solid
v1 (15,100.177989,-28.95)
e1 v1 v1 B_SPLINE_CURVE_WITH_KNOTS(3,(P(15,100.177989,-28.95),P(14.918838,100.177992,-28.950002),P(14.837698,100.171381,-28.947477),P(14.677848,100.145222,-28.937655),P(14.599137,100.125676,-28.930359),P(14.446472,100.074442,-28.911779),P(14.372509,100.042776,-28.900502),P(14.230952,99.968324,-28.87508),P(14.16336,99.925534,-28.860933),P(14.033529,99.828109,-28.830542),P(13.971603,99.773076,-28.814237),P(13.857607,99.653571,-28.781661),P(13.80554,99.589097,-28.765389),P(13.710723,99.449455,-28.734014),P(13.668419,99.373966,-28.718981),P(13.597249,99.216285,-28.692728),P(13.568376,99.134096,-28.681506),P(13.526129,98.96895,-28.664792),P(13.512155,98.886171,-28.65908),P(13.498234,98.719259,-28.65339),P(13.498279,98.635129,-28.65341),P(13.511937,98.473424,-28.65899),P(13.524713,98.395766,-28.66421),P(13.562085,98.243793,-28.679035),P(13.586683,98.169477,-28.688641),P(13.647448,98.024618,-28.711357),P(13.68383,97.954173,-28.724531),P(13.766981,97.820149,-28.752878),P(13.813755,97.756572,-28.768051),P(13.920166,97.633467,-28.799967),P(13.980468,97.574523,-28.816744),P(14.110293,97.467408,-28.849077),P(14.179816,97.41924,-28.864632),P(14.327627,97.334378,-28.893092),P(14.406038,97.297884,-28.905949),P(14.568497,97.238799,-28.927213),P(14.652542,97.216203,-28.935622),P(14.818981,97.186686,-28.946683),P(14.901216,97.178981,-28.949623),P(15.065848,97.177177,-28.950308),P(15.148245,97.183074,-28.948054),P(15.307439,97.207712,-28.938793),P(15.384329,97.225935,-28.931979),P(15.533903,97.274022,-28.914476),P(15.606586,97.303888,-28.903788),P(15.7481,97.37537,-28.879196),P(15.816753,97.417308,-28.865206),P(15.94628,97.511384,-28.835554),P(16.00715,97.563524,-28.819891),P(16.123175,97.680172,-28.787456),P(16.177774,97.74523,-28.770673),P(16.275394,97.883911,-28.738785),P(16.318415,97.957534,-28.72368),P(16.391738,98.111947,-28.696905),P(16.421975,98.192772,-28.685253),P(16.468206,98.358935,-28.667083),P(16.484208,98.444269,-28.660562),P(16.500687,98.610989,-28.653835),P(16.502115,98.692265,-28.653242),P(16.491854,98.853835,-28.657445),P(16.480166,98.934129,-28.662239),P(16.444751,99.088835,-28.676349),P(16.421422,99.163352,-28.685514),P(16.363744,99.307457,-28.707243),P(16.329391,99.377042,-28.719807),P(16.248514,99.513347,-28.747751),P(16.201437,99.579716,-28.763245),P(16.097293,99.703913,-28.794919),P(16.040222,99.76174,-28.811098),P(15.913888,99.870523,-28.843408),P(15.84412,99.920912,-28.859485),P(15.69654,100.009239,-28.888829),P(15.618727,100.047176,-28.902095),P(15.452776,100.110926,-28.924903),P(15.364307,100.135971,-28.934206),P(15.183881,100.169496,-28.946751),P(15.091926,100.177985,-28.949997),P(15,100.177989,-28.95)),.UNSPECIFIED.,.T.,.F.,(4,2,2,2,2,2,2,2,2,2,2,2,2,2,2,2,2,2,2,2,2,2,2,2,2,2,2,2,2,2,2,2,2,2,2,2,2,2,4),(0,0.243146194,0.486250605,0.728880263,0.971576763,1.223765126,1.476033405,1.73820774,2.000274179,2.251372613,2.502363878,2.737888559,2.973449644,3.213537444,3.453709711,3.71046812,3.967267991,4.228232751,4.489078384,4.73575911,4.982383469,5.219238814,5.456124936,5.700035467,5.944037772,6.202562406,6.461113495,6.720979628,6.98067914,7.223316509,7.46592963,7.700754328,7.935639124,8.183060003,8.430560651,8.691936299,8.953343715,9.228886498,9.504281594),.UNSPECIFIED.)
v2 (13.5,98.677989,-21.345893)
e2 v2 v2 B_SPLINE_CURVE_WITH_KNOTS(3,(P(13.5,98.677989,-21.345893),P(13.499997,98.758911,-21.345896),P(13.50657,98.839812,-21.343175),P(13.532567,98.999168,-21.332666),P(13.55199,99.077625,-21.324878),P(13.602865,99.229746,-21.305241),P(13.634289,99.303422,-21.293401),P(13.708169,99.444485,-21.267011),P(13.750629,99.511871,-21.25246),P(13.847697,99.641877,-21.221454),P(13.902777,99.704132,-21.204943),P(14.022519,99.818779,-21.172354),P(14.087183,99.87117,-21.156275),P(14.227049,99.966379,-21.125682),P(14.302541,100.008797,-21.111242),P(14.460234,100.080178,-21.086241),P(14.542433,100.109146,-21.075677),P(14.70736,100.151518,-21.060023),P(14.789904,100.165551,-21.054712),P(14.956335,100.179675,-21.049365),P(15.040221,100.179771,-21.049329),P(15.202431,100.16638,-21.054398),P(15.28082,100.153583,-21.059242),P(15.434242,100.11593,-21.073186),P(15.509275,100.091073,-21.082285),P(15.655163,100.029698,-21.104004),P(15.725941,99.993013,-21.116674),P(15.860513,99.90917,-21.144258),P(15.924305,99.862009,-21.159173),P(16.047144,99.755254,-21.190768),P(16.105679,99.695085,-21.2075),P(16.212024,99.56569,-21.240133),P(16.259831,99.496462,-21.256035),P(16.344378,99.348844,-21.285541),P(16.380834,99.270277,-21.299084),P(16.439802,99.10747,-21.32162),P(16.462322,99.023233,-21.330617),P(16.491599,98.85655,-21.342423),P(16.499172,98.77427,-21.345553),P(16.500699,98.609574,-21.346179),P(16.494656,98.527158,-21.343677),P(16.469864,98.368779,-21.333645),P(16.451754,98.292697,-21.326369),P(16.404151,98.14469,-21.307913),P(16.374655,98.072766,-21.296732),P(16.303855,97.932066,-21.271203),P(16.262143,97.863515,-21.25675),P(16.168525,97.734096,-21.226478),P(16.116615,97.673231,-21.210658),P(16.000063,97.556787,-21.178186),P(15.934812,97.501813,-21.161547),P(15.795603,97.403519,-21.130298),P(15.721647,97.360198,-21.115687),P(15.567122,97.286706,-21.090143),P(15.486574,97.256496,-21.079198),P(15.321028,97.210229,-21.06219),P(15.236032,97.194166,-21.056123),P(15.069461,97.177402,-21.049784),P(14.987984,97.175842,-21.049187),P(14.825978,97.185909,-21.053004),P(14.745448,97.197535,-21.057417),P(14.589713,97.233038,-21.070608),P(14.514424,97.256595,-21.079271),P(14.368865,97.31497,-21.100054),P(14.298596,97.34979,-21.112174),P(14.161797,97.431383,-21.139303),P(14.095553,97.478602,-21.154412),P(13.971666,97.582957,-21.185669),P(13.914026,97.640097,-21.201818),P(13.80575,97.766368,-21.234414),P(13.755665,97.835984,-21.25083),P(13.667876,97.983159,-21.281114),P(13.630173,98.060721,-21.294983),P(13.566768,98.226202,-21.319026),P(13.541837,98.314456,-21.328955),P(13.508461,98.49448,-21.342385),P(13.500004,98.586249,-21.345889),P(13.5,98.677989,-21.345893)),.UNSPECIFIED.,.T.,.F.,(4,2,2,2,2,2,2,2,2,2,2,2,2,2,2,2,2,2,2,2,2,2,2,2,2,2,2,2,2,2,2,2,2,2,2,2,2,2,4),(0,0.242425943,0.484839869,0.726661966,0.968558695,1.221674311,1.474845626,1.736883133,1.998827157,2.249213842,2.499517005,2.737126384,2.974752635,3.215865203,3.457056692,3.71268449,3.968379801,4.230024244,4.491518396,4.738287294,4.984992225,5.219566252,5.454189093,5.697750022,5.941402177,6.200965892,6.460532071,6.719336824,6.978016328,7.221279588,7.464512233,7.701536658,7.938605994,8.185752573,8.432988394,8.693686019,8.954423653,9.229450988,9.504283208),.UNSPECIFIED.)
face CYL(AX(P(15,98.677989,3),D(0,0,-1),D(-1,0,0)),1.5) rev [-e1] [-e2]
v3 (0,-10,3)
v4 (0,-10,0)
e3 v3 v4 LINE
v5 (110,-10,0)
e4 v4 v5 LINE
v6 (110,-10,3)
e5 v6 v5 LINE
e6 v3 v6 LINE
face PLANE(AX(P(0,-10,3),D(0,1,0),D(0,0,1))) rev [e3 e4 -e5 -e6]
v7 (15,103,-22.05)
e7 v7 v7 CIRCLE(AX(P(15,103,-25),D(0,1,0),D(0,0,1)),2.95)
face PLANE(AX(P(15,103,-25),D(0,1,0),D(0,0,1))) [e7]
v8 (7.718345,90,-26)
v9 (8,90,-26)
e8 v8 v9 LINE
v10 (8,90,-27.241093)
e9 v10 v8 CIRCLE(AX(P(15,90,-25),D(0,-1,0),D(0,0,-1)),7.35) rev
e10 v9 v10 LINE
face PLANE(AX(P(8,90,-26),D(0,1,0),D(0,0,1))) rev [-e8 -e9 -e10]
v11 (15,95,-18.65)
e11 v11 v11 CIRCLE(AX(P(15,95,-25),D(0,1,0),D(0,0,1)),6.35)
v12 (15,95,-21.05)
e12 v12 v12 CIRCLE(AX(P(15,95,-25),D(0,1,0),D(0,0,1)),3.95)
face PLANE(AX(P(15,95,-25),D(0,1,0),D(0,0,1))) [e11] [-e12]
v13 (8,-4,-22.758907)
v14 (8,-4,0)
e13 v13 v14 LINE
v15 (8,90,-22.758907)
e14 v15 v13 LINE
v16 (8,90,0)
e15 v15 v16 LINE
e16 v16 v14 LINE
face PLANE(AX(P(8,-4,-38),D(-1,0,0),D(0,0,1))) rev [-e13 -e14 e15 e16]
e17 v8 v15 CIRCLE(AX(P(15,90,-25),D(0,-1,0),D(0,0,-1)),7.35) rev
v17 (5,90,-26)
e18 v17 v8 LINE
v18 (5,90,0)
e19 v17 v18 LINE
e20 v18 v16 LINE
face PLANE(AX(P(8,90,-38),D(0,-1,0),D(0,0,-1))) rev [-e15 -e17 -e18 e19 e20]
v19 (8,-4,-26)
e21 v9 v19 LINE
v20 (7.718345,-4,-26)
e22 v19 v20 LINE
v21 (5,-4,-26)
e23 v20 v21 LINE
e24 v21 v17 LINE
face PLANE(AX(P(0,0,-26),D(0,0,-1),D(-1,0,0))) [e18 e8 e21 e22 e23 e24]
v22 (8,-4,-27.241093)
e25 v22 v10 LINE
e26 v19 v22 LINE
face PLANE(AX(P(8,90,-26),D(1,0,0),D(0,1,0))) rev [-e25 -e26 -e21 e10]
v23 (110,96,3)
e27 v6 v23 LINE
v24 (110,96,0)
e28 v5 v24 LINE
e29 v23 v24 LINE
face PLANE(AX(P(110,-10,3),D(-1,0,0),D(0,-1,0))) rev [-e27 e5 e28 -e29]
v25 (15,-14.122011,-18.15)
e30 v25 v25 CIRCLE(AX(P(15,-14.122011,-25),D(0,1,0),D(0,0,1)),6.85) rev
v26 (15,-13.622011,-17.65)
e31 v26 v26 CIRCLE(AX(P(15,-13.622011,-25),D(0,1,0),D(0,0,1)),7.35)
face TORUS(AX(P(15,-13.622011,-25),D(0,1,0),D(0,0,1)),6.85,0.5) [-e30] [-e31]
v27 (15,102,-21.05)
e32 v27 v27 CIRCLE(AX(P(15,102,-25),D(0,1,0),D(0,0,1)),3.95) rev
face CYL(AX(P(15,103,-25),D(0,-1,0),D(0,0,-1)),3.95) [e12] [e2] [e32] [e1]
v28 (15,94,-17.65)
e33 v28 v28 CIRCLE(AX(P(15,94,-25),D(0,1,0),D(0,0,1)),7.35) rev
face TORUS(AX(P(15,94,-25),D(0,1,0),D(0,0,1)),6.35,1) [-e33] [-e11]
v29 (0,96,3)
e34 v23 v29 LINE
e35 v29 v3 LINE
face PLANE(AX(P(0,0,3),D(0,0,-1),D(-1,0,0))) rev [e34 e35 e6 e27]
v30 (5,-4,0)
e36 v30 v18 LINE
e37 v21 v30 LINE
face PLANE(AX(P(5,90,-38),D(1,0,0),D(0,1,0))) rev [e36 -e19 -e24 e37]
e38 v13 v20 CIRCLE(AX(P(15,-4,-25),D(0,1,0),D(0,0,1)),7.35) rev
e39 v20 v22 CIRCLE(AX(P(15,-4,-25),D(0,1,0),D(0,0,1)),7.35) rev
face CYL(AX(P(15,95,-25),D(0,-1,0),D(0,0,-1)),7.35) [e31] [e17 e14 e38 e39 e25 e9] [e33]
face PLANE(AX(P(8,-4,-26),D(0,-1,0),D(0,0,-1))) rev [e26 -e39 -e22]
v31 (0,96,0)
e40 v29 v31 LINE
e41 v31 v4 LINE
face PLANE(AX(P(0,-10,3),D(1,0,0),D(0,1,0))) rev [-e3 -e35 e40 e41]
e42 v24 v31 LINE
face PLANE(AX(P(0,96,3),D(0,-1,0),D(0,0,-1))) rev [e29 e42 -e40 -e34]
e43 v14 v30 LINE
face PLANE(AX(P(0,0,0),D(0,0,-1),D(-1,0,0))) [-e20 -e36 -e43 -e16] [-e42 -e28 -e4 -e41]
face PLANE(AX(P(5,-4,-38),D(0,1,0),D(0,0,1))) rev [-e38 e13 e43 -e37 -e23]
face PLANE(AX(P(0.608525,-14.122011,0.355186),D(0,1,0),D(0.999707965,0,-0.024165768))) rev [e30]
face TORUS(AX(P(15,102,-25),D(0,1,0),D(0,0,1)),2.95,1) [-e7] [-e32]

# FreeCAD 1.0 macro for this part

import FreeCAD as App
import Part
import Sketcher
from FreeCAD import Vector


def edges_at(feature, points):
    """Names of the edges that pass closest to the given points."""
    edges = feature.Shape.Edges
    near = lambda p: min(range(len(edges)), key=lambda i: edges[i].distToShape(Part.Vertex(*p))[0])
    return sorted({f"Edge{near(p) + 1}" for p in points})


def add_polygon(sketch, points):
    """Adds a closed chain of lines whose ends are joined by coincident constraints."""
    first, n = sketch.GeometryCount, len(points)
    for a, b in zip(points, points[1:] + points[:1]):
        sketch.addGeometry(Part.LineSegment(App.Vector(*a, 0), App.Vector(*b, 0)), False)
    for i in range(n):
        sketch.addConstraint(Sketcher.Constraint("Coincident", first + i, 2, first + (i + 1) % n, 1))

doc = App.newDocument("Part")
params = doc.addObject("Spreadsheet::Sheet", "Params")
for row, (alias, value) in enumerate([
    ("sketch1_width", "110 mm"),
    ("sketch1_height", "106 mm"),
    ("pad1_length", "3 mm"),
    ("sketch2_width", "3 mm"),
    ("sketch2_height", "94 mm"),
    ("pad2_length", "38 mm"),
    ("sketch3_diameter", "14.7 mm"),
    ("pad3_length", "5 mm"),
    ("pad3_length2", "104.122011 mm"),
    ("sketch4_diameter", "7.9 mm"),
    ("pad4_length", "8 mm"),
    ("fillet_radius", "1 mm"),
    ("sketch5_diameter", "3 mm"),
    ("fillet2_radius", "0.5 mm"),
    ("sketch6_width", "3 mm"),
    ("sketch6_height", "94 mm"),
    ("pocket2_length", "12 mm"),
], start=1):
    params.set(f"A{row}", alias)
    params.set(f"B{row}", "=" + value)
    params.setAlias(f"B{row}", alias)

body = doc.addObject("PartDesign::Body", "Body")

# Sketch on XY plane
sketch1 = body.newObject("Sketcher::SketchObject", "Sketch")
sketch1.AttachmentSupport = (doc.getObject("XY_Plane"), [""])
sketch1.MapMode = "FlatFace"
add_polygon(sketch1, [(0, 96), (0, -10), (110, -10), (110, 96)])  # lines 0-3
sketch1.addConstraint(Sketcher.Constraint("Vertical", 0))
sketch1.addConstraint(Sketcher.Constraint("Horizontal", 1))
sketch1.addConstraint(Sketcher.Constraint("Vertical", 2))
sketch1.addConstraint(Sketcher.Constraint("Horizontal", 3))
sketch1.addConstraint(Sketcher.Constraint("PointOnObject", 0, 2, -2))
sketch1.addConstraint(Sketcher.Constraint("DistanceX", 1, 1, 1, 2, 110.0))
sketch1.addConstraint(Sketcher.Constraint("DistanceY", 0, 2, 0, 1, 106.0))
sketch1.addConstraint(Sketcher.Constraint("DistanceY", 0, 2, -1, 1, 10.0))
sketch1.setExpression("Constraints[9]", "Params.sketch1_width")
sketch1.setExpression("Constraints[10]", "Params.sketch1_height")
pad1 = body.newObject("PartDesign::Pad", "Pad")
pad1.Profile = sketch1
pad1.setExpression("Length", "Params.pad1_length")

# Sketch on XY plane
sketch2 = body.newObject("Sketcher::SketchObject", "Sketch001")
sketch2.AttachmentSupport = (doc.getObject("XY_Plane"), [""])
sketch2.MapMode = "FlatFace"
add_polygon(sketch2, [(8, 90), (8, -4), (5, -4), (5, 90)])  # lines 0-3
sketch2.addConstraint(Sketcher.Constraint("Vertical", 0))
sketch2.addConstraint(Sketcher.Constraint("Horizontal", 1))
sketch2.addConstraint(Sketcher.Constraint("Vertical", 2))
sketch2.addConstraint(Sketcher.Constraint("Horizontal", 3))
sketch2.addConstraint(Sketcher.Constraint("DistanceX", 1, 2, 1, 1, 3.0))
sketch2.addConstraint(Sketcher.Constraint("DistanceY", 0, 2, 0, 1, 94.0))
sketch2.addConstraint(Sketcher.Constraint("DistanceX", -1, 1, 0, 2, 8.0))
sketch2.addConstraint(Sketcher.Constraint("DistanceY", 0, 2, -1, 1, 4.0))
sketch2.setExpression("Constraints[8]", "Params.sketch2_width")
sketch2.setExpression("Constraints[9]", "Params.sketch2_height")
pad2 = body.newObject("PartDesign::Pad", "Pad001")
pad2.Profile = sketch2
pad2.setExpression("Length", "Params.pad2_length")
pad2.Reversed = True

# Sketch on XZ plane
sketch3 = body.newObject("Sketcher::SketchObject", "Sketch002")
sketch3.AttachmentSupport = (doc.getObject("XZ_Plane"), [""])
sketch3.MapMode = "FlatFace"
sketch3.AttachmentOffset = App.Placement(Vector(0, 0, -90), App.Rotation())
sketch3.addGeometry(Part.Circle(Vector(15, -25, 0), Vector(0, 0, 1), 7), False)
sketch3.addConstraint(Sketcher.Constraint("Diameter", 0, 14.7))
sketch3.addConstraint(Sketcher.Constraint("DistanceX", -1, 1, 0, 3, 15.0))
sketch3.addConstraint(Sketcher.Constraint("DistanceY", 0, 3, -1, 1, 25.0))
sketch3.setExpression("Constraints[0]", "Params.sketch3_diameter")
pad3 = body.newObject("PartDesign::Pad", "Pad002")
pad3.Profile = sketch3
pad3.Type = "TwoLengths"
pad3.setExpression("Length", "Params.pad3_length")
pad3.setExpression("Length2", "Params.pad3_length2")
pad3.Reversed = True

# Sketch on XZ plane
sketch4 = body.newObject("Sketcher::SketchObject", "Sketch003")
sketch4.AttachmentSupport = (doc.getObject("XZ_Plane"), [""])
sketch4.MapMode = "FlatFace"
sketch4.AttachmentOffset = App.Placement(Vector(0, 0, -95), App.Rotation())
sketch4.addGeometry(Part.Circle(Vector(15, -25, 0), Vector(0, 0, 1), 4), False)
sketch4.addConstraint(Sketcher.Constraint("Diameter", 0, 7.9))
sketch4.addConstraint(Sketcher.Constraint("DistanceX", -1, 1, 0, 3, 15.0))
sketch4.addConstraint(Sketcher.Constraint("DistanceY", 0, 3, -1, 1, 25.0))
sketch4.setExpression("Constraints[0]", "Params.sketch4_diameter")
pad4 = body.newObject("PartDesign::Pad", "Pad003")
pad4.Profile = sketch4
pad4.setExpression("Length", "Params.pad4_length")
pad4.Reversed = True
doc.recompute()

fillet = body.newObject("PartDesign::Fillet", "Fillet")
fillet.Base = (pad4, edges_at(pad4, [(15, 95, -32.35), (15, 103, -28.95)]))
fillet.setExpression("Radius", "Params.fillet_radius")

# Sketch on XY plane
sketch5 = body.newObject("Sketcher::SketchObject", "Sketch004")
sketch5.AttachmentSupport = (doc.getObject("XY_Plane"), [""])
sketch5.MapMode = "FlatFace"
sketch5.AttachmentOffset = App.Placement(Vector(0, 0, -28.95), App.Rotation())
sketch5.addGeometry(Part.Circle(Vector(15, 98.7, 0), Vector(0, 0, 1), 1.5), False)
sketch5.addConstraint(Sketcher.Constraint("Diameter", 0, 3.0))
sketch5.addConstraint(Sketcher.Constraint("DistanceX", -1, 1, 0, 3, 15.0))
sketch5.addConstraint(Sketcher.Constraint("DistanceY", -1, 1, 0, 3, 98.677989))
sketch5.setExpression("Constraints[0]", "Params.sketch5_diameter")
pocket1 = body.newObject("PartDesign::Pocket", "Pocket")
pocket1.Profile = sketch5
pocket1.Type = "ThroughAll"
pocket1.Midplane = True
doc.recompute()

fillet2 = body.newObject("PartDesign::Fillet", "Fillet001")
fillet2.Base = (pocket1, edges_at(pocket1, [(15, -14.122, -32.35)]))
fillet2.setExpression("Radius", "Params.fillet2_radius")

# Sketch on XY plane
sketch6 = body.newObject("Sketcher::SketchObject", "Sketch005")
sketch6.AttachmentSupport = (doc.getObject("XY_Plane"), [""])
sketch6.MapMode = "FlatFace"
sketch6.AttachmentOffset = App.Placement(Vector(0, 0, -38), App.Rotation())
add_polygon(sketch6, [(8, 90), (8, -4), (5, -4), (5, 90)])  # lines 0-3
sketch6.addConstraint(Sketcher.Constraint("Vertical", 0))
sketch6.addConstraint(Sketcher.Constraint("Horizontal", 1))
sketch6.addConstraint(Sketcher.Constraint("Vertical", 2))
sketch6.addConstraint(Sketcher.Constraint("Horizontal", 3))
sketch6.addConstraint(Sketcher.Constraint("DistanceX", 1, 2, 1, 1, 3.0))
sketch6.addConstraint(Sketcher.Constraint("DistanceY", 0, 2, 0, 1, 94.0))
sketch6.addConstraint(Sketcher.Constraint("DistanceX", -1, 1, 0, 2, 8.0))
sketch6.addConstraint(Sketcher.Constraint("DistanceY", 0, 2, -1, 1, 4.0))
sketch6.setExpression("Constraints[8]", "Params.sketch6_width")
sketch6.setExpression("Constraints[9]", "Params.sketch6_height")
pocket2 = body.newObject("PartDesign::Pocket", "Pocket001")
pocket2.Profile = sketch6
pocket2.setExpression("Length", "Params.pocket2_length")
pocket2.Reversed = True

doc.recompute()
